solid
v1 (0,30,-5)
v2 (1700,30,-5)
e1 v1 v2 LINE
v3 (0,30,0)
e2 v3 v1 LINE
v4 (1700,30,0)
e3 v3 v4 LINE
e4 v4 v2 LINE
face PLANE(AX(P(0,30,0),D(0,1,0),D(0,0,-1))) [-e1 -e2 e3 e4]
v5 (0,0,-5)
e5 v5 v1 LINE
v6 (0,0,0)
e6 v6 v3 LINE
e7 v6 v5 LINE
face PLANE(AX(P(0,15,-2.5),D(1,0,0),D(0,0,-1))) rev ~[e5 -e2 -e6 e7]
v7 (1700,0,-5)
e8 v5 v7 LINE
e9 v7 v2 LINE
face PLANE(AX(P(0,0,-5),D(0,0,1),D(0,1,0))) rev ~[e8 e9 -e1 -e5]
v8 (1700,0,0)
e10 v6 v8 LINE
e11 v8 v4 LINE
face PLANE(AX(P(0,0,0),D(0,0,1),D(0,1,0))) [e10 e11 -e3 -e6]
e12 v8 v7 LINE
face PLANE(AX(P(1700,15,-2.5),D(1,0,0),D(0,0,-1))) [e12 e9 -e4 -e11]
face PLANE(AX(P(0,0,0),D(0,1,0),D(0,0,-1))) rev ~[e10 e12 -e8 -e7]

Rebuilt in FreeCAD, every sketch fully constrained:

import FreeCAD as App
import Part
import Sketcher
from FreeCAD import Vector
Q = App.Units.Quantity


def add_polygon(sketch, points):
    """Adds a closed chain of lines whose ends are joined by coincident constraints."""
    first, n = sketch.GeometryCount, len(points)
    for a, b in zip(points, points[1:] + points[:1]):
        sketch.addGeometry(Part.LineSegment(App.Vector(*a, 0), App.Vector(*b, 0)), False)
    for i in range(n):
        sketch.addConstraint(Sketcher.Constraint("Coincident", first + i, 2, first + (i + 1) % n, 1))

doc = App.newDocument("Part")
body = doc.addObject("PartDesign::Body", "Body")

sketch1 = body.newObject("Sketcher::SketchObject", "Sketch")
sketch1.AttachmentSupport = (doc.getObject("YZ_Plane"), [""])
sketch1.MapMode = "FlatFace"
add_polygon(sketch1, [(30, 0), (0, 0), (0, -5), (30, -5)])
sketch1.addConstraint([
    Sketcher.Constraint("Horizontal", 0),
    Sketcher.Constraint("Vertical", 1),
    Sketcher.Constraint("Horizontal", 2),
    Sketcher.Constraint("Vertical", 3),
    Sketcher.Constraint("Coincident", 0, 2, -1, 1),
    Sketcher.Constraint("DistanceX", 0, 2, 0, 1, Q("30 mm")),
    Sketcher.Constraint("DistanceY", 1, 2, 1, 1, Q("5 mm")),
])
pad1 = body.newObject("PartDesign::Pad", "Pad")
pad1.Profile = sketch1
pad1.Length = 1700

doc.recompute()
